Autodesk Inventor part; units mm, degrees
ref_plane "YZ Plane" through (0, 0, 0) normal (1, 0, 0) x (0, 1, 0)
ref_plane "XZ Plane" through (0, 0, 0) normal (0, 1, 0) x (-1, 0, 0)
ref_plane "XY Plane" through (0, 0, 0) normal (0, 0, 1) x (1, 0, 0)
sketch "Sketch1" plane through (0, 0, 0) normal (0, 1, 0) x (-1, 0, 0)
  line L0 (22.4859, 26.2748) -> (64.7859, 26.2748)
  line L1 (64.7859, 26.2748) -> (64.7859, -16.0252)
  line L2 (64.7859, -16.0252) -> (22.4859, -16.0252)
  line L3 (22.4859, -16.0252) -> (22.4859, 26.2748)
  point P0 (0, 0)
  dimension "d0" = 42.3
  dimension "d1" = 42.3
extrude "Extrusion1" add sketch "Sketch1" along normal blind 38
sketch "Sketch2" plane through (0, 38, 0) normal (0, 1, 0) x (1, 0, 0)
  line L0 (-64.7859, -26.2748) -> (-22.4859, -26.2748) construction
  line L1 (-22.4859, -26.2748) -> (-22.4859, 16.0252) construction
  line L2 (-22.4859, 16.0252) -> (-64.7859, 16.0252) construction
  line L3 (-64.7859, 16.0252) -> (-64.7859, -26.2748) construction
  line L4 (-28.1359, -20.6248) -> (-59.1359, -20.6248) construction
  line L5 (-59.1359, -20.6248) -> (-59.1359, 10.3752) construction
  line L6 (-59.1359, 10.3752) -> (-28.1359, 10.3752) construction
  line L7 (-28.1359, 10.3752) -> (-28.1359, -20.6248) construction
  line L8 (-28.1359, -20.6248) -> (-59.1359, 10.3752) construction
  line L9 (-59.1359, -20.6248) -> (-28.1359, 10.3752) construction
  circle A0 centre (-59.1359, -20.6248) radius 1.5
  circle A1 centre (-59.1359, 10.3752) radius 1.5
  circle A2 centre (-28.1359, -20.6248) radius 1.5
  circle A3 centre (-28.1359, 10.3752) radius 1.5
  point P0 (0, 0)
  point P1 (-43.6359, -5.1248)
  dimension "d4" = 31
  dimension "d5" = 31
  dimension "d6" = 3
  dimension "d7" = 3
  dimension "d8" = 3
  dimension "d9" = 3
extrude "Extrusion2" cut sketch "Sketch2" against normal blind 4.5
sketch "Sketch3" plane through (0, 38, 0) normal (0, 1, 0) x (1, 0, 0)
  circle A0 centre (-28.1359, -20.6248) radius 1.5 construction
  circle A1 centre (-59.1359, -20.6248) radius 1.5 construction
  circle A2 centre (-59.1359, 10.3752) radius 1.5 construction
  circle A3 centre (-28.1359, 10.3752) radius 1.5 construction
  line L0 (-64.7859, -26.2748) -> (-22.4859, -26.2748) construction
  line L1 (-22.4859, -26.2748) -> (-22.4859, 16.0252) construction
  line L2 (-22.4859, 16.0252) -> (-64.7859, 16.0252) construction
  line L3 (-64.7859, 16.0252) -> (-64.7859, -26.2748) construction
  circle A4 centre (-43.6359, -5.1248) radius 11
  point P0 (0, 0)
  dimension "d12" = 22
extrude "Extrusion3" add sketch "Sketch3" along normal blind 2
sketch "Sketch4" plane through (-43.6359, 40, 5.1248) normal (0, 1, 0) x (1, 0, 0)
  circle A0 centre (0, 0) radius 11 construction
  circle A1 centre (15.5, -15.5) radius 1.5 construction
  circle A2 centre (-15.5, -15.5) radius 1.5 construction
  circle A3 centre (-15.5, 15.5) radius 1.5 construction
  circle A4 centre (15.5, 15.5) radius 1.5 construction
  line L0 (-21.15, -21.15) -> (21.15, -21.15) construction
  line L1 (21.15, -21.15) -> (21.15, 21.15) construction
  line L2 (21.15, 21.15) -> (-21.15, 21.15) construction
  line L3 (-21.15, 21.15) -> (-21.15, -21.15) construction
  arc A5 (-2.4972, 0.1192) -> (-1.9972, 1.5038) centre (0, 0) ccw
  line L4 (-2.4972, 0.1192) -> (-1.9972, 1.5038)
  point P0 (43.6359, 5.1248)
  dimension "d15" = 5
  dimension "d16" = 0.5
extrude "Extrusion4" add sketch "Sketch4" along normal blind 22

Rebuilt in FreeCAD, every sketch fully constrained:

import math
import FreeCAD as App
import Part
import Sketcher

V = App.Vector

doc = App.newDocument("Part")
body = doc.addObject("PartDesign::Body", "Body")

# Sketch on XZ plane
sketch1 = body.newObject("Sketcher::SketchObject", "Sketch")
sketch1.AttachmentSupport = (doc.getObject("XZ_Plane"), [""])
sketch1.MapMode = "FlatFace"
sketch1.addGeometry(Part.LineSegment(V(-64.7859, 26.2748, 0), V(-22.4859, 26.2748, 0)), False)
sketch1.addGeometry(Part.LineSegment(V(-22.4859, 26.2748, 0), V(-22.4859, -16.0252, 0)), False)
sketch1.addGeometry(Part.LineSegment(V(-22.4859, -16.0252, 0), V(-64.7859, -16.0252, 0)), False)
sketch1.addGeometry(Part.LineSegment(V(-64.7859, -16.0252, 0), V(-64.7859, 26.2748, 0)), False)
sketch1.addConstraint(Sketcher.Constraint("Coincident", 0, 2, 1, 1))
sketch1.addConstraint(Sketcher.Constraint("Coincident", 1, 2, 2, 1))
sketch1.addConstraint(Sketcher.Constraint("Coincident", 2, 2, 3, 1))
sketch1.addConstraint(Sketcher.Constraint("Coincident", 3, 2, 0, 1))
sketch1.addConstraint(Sketcher.Constraint("Horizontal", 0))
sketch1.addConstraint(Sketcher.Constraint("Vertical", 1))
sketch1.addConstraint(Sketcher.Constraint("Horizontal", 2))
sketch1.addConstraint(Sketcher.Constraint("Vertical", 3))
sketch1.addConstraint(Sketcher.Constraint("Equal", 2, 1))
sketch1.addConstraint(Sketcher.Constraint("DistanceX", 0, 1, 0, 2, 42.3))
sketch1.addConstraint(Sketcher.Constraint("DistanceX", 0, 2, -1, 1, 22.486))
sketch1.addConstraint(Sketcher.Constraint("DistanceY", -1, 1, 0, 2, 26.2748))
pad1 = body.newObject("PartDesign::Pad", "Pad")
pad1.Profile = sketch1
pad1.Length = 38
pad1.Reversed = True

# Sketch on XZ plane
sketch2 = body.newObject("Sketcher::SketchObject", "Sketch001")
sketch2.AttachmentSupport = (doc.getObject("XZ_Plane"), [""])
sketch2.MapMode = "FlatFace"
sketch2.AttachmentOffset = App.Placement(V(0, 0, -38), App.Rotation())
sketch2.addGeometry(Part.Circle(V(-59.1359, 20.6248, 0), V(0, 0, 1), 1.5), False)
sketch2.addGeometry(Part.Circle(V(-59.1359, -10.3752, 0), V(0, 0, 1), 1.5), False)
sketch2.addGeometry(Part.Circle(V(-28.1359, 20.6248, 0), V(0, 0, 1), 1.5), False)
sketch2.addGeometry(Part.Circle(V(-28.1359, -10.3752, 0), V(0, 0, 1), 1.5), False)
sketch2.addConstraint(Sketcher.Constraint("Equal", 0, 1))
sketch2.addConstraint(Sketcher.Constraint("Equal", 1, 2))
sketch2.addConstraint(Sketcher.Constraint("Equal", 2, 3))
sketch2.addConstraint(Sketcher.Constraint("Horizontal", 0, 3, 2, 3))
sketch2.addConstraint(Sketcher.Constraint("Horizontal", 1, 3, 3, 3))
sketch2.addConstraint(Sketcher.Constraint("Vertical", 0, 3, 1, 3))
sketch2.addConstraint(Sketcher.Constraint("Vertical", 2, 3, 3, 3))
sketch2.addConstraint(Sketcher.Constraint("Diameter", 0, 3.0))
sketch2.addConstraint(Sketcher.Constraint("DistanceY", 1, 3, 0, 3, 31.0))
sketch2.addConstraint(Sketcher.Constraint("DistanceX", 0, 3, 2, 3, 31.0))
sketch2.addConstraint(Sketcher.Constraint("DistanceX", 0, 3, -1, 1, 59.136))
sketch2.addConstraint(Sketcher.Constraint("DistanceY", -1, 1, 0, 3, 20.6248))
pocket1 = body.newObject("PartDesign::Pocket", "Pocket")
pocket1.Profile = sketch2
pocket1.Length = 4.5
pocket1.Reversed = True

# Sketch on XZ plane
sketch3 = body.newObject("Sketcher::SketchObject", "Sketch002")
sketch3.AttachmentSupport = (doc.getObject("XZ_Plane"), [""])
sketch3.MapMode = "FlatFace"
sketch3.AttachmentOffset = App.Placement(V(0, 0, -38), App.Rotation())
sketch3.addGeometry(Part.Circle(V(-43.6359, 5.1248, 0), V(0, 0, 1), 11), False)
sketch3.addConstraint(Sketcher.Constraint("Diameter", 0, 22.0))
sketch3.addConstraint(Sketcher.Constraint("DistanceX", 0, 3, -1, 1, 43.636))
sketch3.addConstraint(Sketcher.Constraint("DistanceY", -1, 1, 0, 3, 5.1248))
pad2 = body.newObject("PartDesign::Pad", "Pad001")
pad2.Profile = sketch3
pad2.Length = 2
pad2.Reversed = True

# Sketch on XZ plane
sketch4 = body.newObject("Sketcher::SketchObject", "Sketch003")
sketch4.AttachmentSupport = (doc.getObject("XZ_Plane"), [""])
sketch4.MapMode = "FlatFace"
sketch4.AttachmentOffset = App.Placement(V(0, 0, -40), App.Rotation())
sketch4.addGeometry(Part.LineSegment(V(-45.6331, 3.621, 0), V(-46.1331, 5.0056, 0)), False)
sketch4.addGeometry(Part.ArcOfCircle(Part.Circle(V(-43.6359, 5.1248, 0), V(0, 0, 1), 2.500043), math.radians(-143.02193), math.radians(182.732852)), False)
sketch4.addConstraint(Sketcher.Constraint("Coincident", 0, 1, 1, 1))
sketch4.addConstraint(Sketcher.Constraint("Coincident", 1, 2, 0, 2))
sketch4.addConstraint(Sketcher.Constraint("Radius", 1, 2.5))
sketch4.addConstraint(Sketcher.Constraint("DistanceX", 1, 2, 0, 1, 0.5))
sketch4.addConstraint(Sketcher.Constraint("Distance", 0, 1.472))
sketch4.addConstraint(Sketcher.Constraint("DistanceX", 1, 3, -1, 1, 43.636))
sketch4.addConstraint(Sketcher.Constraint("DistanceY", -1, 1, 0, 1, 3.621))
pad3 = body.newObject("PartDesign::Pad", "Pad002")
pad3.Profile = sketch4
pad3.Length = 22
pad3.Reversed = True

doc.recompute()
